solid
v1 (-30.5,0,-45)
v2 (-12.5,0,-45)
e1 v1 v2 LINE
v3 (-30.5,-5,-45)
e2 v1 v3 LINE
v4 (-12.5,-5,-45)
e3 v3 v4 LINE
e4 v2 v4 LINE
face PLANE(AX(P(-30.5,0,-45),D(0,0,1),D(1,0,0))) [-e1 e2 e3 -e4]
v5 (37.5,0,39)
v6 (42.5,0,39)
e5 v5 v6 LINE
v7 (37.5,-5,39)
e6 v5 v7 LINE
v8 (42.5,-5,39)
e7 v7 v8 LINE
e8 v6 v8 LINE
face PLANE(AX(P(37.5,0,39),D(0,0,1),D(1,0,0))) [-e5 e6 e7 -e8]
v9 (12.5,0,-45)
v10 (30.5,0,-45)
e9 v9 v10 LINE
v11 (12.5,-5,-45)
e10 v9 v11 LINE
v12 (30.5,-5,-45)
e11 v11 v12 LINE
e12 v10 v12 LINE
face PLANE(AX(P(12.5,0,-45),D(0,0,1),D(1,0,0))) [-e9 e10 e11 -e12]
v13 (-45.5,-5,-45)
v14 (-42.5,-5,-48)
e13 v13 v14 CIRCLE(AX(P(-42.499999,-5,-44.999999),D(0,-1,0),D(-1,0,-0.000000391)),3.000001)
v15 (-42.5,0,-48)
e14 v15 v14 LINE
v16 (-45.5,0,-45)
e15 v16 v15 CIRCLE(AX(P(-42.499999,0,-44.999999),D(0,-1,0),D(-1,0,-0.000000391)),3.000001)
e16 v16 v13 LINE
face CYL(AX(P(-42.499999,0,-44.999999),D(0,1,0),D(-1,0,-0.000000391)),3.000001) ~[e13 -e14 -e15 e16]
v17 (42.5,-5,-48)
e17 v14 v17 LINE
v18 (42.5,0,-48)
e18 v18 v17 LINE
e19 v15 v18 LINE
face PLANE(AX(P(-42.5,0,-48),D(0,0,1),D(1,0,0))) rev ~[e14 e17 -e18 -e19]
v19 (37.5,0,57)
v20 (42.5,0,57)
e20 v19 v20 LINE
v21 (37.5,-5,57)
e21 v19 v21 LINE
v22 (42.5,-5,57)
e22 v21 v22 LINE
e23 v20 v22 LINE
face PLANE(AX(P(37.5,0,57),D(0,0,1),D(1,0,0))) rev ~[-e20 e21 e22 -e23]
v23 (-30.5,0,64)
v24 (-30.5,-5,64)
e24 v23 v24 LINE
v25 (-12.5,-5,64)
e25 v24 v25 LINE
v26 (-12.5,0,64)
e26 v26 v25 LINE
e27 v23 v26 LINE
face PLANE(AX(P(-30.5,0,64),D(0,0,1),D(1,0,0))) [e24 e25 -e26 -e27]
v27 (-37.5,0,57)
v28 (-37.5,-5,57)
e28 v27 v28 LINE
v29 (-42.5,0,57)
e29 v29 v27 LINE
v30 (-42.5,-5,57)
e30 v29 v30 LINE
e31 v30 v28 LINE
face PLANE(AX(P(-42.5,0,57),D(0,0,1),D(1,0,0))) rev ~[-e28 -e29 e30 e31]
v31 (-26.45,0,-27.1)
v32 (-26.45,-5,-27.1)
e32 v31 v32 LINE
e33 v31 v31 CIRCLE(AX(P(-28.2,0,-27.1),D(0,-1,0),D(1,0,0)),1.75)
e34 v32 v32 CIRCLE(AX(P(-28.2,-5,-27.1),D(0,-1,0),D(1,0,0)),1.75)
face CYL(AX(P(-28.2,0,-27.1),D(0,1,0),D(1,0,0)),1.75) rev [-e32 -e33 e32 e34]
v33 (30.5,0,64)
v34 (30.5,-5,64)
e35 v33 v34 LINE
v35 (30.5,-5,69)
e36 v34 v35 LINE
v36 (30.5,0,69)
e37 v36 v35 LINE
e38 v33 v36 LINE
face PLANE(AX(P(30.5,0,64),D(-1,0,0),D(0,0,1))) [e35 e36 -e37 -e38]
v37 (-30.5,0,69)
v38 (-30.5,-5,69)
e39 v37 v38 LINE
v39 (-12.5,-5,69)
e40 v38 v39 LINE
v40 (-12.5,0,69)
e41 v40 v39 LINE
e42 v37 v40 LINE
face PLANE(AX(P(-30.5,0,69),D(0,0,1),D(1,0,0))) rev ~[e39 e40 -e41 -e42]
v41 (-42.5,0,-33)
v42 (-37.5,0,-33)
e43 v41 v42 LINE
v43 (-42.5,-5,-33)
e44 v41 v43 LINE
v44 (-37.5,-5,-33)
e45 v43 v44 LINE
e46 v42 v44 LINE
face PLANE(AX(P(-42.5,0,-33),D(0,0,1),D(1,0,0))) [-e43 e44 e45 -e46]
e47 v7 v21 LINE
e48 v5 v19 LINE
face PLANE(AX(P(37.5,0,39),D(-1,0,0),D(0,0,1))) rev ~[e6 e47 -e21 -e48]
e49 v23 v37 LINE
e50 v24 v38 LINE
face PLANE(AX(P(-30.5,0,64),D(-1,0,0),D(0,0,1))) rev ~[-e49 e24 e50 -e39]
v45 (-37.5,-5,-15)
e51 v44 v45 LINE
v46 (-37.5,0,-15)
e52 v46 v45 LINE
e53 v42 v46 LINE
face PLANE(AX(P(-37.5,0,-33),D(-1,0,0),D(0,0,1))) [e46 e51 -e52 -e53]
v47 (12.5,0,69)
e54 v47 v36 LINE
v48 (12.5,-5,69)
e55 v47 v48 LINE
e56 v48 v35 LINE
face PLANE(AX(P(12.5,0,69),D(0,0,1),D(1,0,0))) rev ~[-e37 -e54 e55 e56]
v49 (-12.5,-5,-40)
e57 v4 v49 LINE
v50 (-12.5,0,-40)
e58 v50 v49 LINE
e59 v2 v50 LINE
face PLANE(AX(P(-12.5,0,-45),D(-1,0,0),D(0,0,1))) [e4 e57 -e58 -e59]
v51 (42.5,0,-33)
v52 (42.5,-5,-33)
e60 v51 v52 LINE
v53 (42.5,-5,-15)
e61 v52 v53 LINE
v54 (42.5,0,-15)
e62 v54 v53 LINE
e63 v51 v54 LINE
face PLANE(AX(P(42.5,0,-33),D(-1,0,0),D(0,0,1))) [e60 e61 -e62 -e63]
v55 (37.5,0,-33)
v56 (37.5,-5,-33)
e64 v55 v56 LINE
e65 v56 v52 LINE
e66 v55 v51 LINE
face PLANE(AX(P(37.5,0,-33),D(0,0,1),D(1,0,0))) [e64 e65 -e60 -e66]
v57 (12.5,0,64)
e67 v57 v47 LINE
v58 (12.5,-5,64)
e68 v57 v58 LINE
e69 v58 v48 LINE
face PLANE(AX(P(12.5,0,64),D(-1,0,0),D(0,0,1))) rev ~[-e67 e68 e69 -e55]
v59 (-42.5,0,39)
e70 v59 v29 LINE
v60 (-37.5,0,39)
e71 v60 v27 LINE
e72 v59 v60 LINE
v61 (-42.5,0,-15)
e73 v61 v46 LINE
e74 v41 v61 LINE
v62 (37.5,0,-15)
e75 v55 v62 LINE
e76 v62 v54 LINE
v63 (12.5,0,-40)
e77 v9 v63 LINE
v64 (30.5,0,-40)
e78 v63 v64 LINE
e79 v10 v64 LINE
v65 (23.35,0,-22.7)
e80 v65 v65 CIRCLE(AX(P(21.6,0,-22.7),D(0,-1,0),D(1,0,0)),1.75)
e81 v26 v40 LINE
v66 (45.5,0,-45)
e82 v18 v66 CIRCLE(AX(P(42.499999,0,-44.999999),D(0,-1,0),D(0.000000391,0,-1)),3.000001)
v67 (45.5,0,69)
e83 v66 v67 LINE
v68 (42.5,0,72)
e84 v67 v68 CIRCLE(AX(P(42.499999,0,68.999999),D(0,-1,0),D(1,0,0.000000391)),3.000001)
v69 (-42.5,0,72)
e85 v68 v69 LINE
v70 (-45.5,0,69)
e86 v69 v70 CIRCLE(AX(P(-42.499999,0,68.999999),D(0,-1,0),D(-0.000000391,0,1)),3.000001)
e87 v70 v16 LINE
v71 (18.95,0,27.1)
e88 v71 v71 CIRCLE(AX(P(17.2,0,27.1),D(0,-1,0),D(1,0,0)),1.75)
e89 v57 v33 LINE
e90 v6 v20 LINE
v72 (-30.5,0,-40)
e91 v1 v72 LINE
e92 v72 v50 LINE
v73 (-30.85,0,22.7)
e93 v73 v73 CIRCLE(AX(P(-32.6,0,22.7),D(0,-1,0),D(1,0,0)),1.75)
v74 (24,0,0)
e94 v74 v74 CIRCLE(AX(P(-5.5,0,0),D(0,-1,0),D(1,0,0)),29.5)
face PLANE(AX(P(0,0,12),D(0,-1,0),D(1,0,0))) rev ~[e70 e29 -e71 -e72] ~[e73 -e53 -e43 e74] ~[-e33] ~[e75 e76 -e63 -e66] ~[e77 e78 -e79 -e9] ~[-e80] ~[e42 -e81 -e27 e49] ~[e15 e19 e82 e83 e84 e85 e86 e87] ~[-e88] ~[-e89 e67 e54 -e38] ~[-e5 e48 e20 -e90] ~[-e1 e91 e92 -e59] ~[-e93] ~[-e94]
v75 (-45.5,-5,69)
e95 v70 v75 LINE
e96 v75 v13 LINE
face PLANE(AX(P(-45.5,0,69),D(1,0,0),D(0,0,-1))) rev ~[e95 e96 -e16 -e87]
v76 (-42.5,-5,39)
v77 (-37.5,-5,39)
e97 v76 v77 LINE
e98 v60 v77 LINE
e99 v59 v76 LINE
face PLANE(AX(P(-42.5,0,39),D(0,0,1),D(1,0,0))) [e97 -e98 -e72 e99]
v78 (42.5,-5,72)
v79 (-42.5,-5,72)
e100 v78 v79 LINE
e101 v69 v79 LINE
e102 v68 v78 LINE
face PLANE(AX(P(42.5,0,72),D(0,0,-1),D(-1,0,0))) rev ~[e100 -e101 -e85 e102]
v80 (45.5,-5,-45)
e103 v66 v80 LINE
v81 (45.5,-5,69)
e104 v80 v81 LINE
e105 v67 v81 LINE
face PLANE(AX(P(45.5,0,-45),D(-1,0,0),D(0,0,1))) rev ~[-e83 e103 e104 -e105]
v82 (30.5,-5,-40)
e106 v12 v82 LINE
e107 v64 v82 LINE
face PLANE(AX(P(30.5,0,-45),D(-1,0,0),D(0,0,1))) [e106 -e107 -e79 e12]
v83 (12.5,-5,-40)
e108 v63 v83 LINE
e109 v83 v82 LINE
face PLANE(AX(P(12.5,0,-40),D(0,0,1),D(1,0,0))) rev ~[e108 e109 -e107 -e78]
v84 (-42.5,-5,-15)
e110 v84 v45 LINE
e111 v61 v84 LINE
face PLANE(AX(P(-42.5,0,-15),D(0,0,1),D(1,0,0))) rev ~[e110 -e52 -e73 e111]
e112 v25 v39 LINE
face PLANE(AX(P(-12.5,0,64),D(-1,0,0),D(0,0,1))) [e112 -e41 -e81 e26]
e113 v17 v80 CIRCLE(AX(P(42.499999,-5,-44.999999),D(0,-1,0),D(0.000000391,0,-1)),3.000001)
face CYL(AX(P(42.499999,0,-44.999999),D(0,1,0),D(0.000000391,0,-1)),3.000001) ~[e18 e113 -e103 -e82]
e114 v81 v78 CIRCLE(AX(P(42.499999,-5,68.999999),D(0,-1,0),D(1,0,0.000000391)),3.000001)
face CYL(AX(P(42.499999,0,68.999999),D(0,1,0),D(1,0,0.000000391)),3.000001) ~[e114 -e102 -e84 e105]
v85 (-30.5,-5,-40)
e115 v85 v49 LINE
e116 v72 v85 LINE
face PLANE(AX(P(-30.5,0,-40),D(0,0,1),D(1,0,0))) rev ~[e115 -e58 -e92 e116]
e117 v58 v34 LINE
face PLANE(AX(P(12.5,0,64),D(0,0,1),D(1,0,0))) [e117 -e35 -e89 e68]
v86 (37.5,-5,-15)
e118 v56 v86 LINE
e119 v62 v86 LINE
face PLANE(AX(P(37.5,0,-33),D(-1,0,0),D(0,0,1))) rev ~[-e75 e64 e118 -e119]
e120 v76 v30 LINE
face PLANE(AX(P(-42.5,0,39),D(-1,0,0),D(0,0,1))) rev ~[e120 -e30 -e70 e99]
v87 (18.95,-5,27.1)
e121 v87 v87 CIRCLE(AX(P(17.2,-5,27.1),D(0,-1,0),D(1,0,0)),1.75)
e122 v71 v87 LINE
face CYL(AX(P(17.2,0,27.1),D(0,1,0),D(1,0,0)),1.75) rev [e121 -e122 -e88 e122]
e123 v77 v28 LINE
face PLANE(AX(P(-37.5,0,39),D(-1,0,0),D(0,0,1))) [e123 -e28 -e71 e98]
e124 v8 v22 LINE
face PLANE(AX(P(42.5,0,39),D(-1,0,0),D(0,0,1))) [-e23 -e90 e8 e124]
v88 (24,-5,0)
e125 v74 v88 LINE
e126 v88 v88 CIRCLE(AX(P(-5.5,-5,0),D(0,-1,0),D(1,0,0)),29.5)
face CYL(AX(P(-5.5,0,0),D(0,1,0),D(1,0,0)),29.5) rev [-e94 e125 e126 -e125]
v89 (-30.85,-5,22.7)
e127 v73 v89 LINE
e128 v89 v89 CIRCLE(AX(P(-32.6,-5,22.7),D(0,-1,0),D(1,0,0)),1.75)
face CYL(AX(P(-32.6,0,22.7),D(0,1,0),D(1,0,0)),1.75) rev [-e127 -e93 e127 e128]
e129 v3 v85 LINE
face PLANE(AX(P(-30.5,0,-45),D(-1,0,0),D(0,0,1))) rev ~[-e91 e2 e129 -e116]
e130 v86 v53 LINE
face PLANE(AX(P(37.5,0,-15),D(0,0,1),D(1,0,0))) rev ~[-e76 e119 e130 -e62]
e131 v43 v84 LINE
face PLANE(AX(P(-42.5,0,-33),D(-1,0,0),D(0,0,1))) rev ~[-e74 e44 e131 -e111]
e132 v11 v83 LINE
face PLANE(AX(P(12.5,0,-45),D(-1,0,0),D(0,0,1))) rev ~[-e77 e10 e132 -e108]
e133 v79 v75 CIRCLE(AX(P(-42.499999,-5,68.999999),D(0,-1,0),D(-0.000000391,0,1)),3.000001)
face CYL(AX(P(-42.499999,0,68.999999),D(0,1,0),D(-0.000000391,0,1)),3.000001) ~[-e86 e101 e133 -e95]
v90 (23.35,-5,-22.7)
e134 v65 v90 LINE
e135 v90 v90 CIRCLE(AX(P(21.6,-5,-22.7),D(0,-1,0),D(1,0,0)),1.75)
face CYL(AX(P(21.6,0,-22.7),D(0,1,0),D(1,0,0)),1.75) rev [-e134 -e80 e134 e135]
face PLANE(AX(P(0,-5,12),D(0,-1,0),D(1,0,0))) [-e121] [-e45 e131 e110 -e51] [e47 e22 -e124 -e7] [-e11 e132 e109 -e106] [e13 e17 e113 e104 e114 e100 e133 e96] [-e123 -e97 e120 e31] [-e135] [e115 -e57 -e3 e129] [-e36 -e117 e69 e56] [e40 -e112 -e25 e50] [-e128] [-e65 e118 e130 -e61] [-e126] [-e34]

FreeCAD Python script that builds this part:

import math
import FreeCAD as App
import Part
import Sketcher
from FreeCAD import Vector


def add_polygon(sketch, points):
    """Adds a closed chain of lines whose ends are joined by coincident constraints."""
    first, n = sketch.GeometryCount, len(points)
    for a, b in zip(points, points[1:] + points[:1]):
        sketch.addGeometry(Part.LineSegment(App.Vector(*a, 0), App.Vector(*b, 0)), False)
    for i in range(n):
        sketch.addConstraint(Sketcher.Constraint("Coincident", first + i, 2, first + (i + 1) % n, 1))

doc = App.newDocument("Part")
params = doc.addObject("Spreadsheet::Sheet", "Params")
for row, (alias, value) in enumerate([
    ("sketch1_diameter", "59 mm"),
    ("sketch1_radius", "3.000001 mm"),
    ("sketch1_diameter2", "3.5 mm"),
    ("sketch1_width", "85 mm"),
    ("sketch1_width2", "18 mm"),
    ("pad1_length", "5 mm"),
], start=1):
    params.set(f"A{row}", alias)
    params.set(f"B{row}", "=" + value)
    params.setAlias(f"B{row}", alias)

body = doc.addObject("PartDesign::Body", "Body")

sketch1 = body.newObject("Sketcher::SketchObject", "Sketch")
sketch1.AttachmentSupport = (doc.getObject("XZ_Plane"), [""])
sketch1.MapMode = "FlatFace"
sketch1.addGeometry(Part.LineSegment(Vector(42.5, 72, 0), Vector(-42.5, 72, 0)), False)
sketch1.addGeometry(Part.ArcOfCircle(Part.Circle(Vector(-42.499999, 68.999999, 0), Vector(0, 0, 1), 3.000001), math.radians(90.000022), math.radians(179.999978)), False)
sketch1.addGeometry(Part.LineSegment(Vector(-45.5, 69, 0), Vector(-45.5, -45, 0)), False)
sketch1.addGeometry(Part.ArcOfCircle(Part.Circle(Vector(-42.499999, -44.999999, 0), Vector(0, 0, 1), 3.000001), math.radians(-179.999978), math.radians(-90.000022)), False)
sketch1.addGeometry(Part.LineSegment(Vector(-42.5, -48, 0), Vector(42.5, -48, 0)), False)
sketch1.addGeometry(Part.ArcOfCircle(Part.Circle(Vector(42.499999, -44.999999, 0), Vector(0, 0, 1), 3.000001), math.radians(-89.999978), math.radians(-0.000022)), False)
sketch1.addGeometry(Part.LineSegment(Vector(45.5, -45, 0), Vector(45.5, 69, 0)), False)
sketch1.addGeometry(Part.ArcOfCircle(Part.Circle(Vector(42.499999, 68.999999, 0), Vector(0, 0, 1), 3.000001), math.radians(0.000022), math.radians(89.999978)), False)
add_polygon(sketch1, [(-12.5, -45), (-30.5, -45), (-30.5, -40), (-12.5, -40)])
add_polygon(sketch1, [(-37.5, -33), (-42.5, -33), (-42.5, -15), (-37.5, -15)])
sketch1.addGeometry(Part.Circle(Vector(-28.2, -27.1, 0), Vector(0, 0, 1), 1.75), False)
sketch1.addGeometry(Part.Circle(Vector(-5.5, 0, 0), Vector(0, 0, 1), 29.5), False)
add_polygon(sketch1, [(30.5, -45), (12.5, -45), (12.5, -40), (30.5, -40)])
sketch1.addGeometry(Part.Circle(Vector(21.6, -22.7, 0), Vector(0, 0, 1), 1.75), False)
add_polygon(sketch1, [(42.5, -33), (37.5, -33), (37.5, -15), (42.5, -15)])
sketch1.addGeometry(Part.Circle(Vector(-32.6, 22.7, 0), Vector(0, 0, 1), 1.75), False)
add_polygon(sketch1, [(-37.5, 39), (-42.5, 39), (-42.5, 57), (-37.5, 57)])
add_polygon(sketch1, [(-12.5, 64), (-30.5, 64), (-30.5, 69), (-12.5, 69)])
sketch1.addGeometry(Part.Circle(Vector(17.2, 27.1, 0), Vector(0, 0, 1), 1.75), False)
add_polygon(sketch1, [(42.5, 39), (37.5, 39), (37.5, 57), (42.5, 57)])
add_polygon(sketch1, [(30.5, 64), (12.5, 64), (12.5, 69), (30.5, 69)])
sketch1.addConstraint([
    Sketcher.Constraint("Tangent", 0, 2, 1, 1),
    Sketcher.Constraint("Tangent", 1, 2, 2, 1),
    Sketcher.Constraint("Tangent", 2, 2, 3, 1),
    Sketcher.Constraint("Tangent", 3, 2, 4, 1),
    Sketcher.Constraint("Tangent", 4, 2, 5, 1),
    Sketcher.Constraint("Tangent", 5, 2, 6, 1),
    Sketcher.Constraint("Tangent", 6, 2, 7, 1),
    Sketcher.Constraint("Tangent", 7, 2, 0, 1),
    Sketcher.Constraint("Horizontal", 0),
    Sketcher.Constraint("Vertical", 2),
    Sketcher.Constraint("Horizontal", 4),
    Sketcher.Constraint("Vertical", 6),
    Sketcher.Constraint("Horizontal", 8),
    Sketcher.Constraint("Vertical", 9),
    Sketcher.Constraint("Horizontal", 10),
    Sketcher.Constraint("Vertical", 11),
    Sketcher.Constraint("Horizontal", 12),
    Sketcher.Constraint("Vertical", 13),
    Sketcher.Constraint("Horizontal", 14),
    Sketcher.Constraint("Vertical", 15),
    Sketcher.Constraint("Horizontal", 18),
    Sketcher.Constraint("Vertical", 19),
    Sketcher.Constraint("Horizontal", 20),
    Sketcher.Constraint("Vertical", 21),
    Sketcher.Constraint("Horizontal", 23),
    Sketcher.Constraint("Vertical", 24),
    Sketcher.Constraint("Horizontal", 25),
    Sketcher.Constraint("Vertical", 26),
    Sketcher.Constraint("Horizontal", 28),
    Sketcher.Constraint("Vertical", 29),
    Sketcher.Constraint("Horizontal", 30),
    Sketcher.Constraint("Vertical", 31),
    Sketcher.Constraint("Horizontal", 32),
    Sketcher.Constraint("Vertical", 33),
    Sketcher.Constraint("Horizontal", 34),
    Sketcher.Constraint("Vertical", 35),
    Sketcher.Constraint("Horizontal", 37),
    Sketcher.Constraint("Vertical", 38),
    Sketcher.Constraint("Horizontal", 39),
    Sketcher.Constraint("Vertical", 40),
    Sketcher.Constraint("Horizontal", 41),
    Sketcher.Constraint("Vertical", 42),
    Sketcher.Constraint("Horizontal", 43),
    Sketcher.Constraint("Vertical", 44),
    Sketcher.Constraint("Equal", 1, 3),
    Sketcher.Constraint("Equal", 3, 5),
    Sketcher.Constraint("Equal", 5, 7),
    Sketcher.Constraint("Equal", 16, 22),
    Sketcher.Constraint("Equal", 22, 27),
    Sketcher.Constraint("Equal", 27, 36),
    Sketcher.Constraint("Symmetric", 11, 2, 18, 2, -2),
    Sketcher.Constraint("Symmetric", 9, 2, 20, 2, -2),
    Sketcher.Constraint("Symmetric", 15, 2, 23, 2, -2),
    Sketcher.Constraint("Symmetric", 13, 2, 25, 2, -2),
    Sketcher.Constraint("Symmetric", 31, 2, 37, 2, -2),
    Sketcher.Constraint("Symmetric", 29, 2, 39, 2, -2),
    Sketcher.Constraint("Symmetric", 35, 2, 41, 2, -2),
    Sketcher.Constraint("Symmetric", 33, 2, 43, 2, -2),
    Sketcher.Constraint("PointOnObject", 17, 3, -1),
    Sketcher.Constraint("Horizontal", 5, 2, 8, 2),
    Sketcher.Constraint("Horizontal", 6, 2, 33, 2),
    Sketcher.Constraint("Vertical", 3, 2, 12, 2),
    Sketcher.Constraint("Vertical", 7, 2, 25, 2),
    Sketcher.Constraint("Vertical", 13, 2, 28, 2),
    Sketcher.Constraint("Vertical", 15, 2, 30, 2),
    Sketcher.Constraint("Vertical", 9, 2, 32, 2),
    Sketcher.Constraint("Vertical", 11, 2, 34, 2),
    Sketcher.Constraint("Equal", 39, 9),
    Sketcher.Constraint("Equal", 43, 13),
    Sketcher.Constraint("Equal", 26, 29),
    Sketcher.Constraint("Equal", 21, 33),
    Sketcher.Constraint("Diameter", 17, 59.0),
    Sketcher.Constraint("Radius", 1, 3.000001),
    Sketcher.Constraint("Diameter", 16, 3.5),
    Sketcher.Constraint("DistanceX", 0, 2, 0, 1, 85.0),
    Sketcher.Constraint("DistanceX", 8, 2, 8, 1, 18.0),
    Sketcher.Constraint("DistanceX", 12, 2, 12, 1, 5.0),
    Sketcher.Constraint("DistanceY", 2, 2, 2, 1, 114.0),
    Sketcher.Constraint("DistanceY", -1, 1, 1, 3, 68.999999),
    Sketcher.Constraint("DistanceY", 12, 2, -1, 1, 33.0),
    Sketcher.Constraint("DistanceY", -1, 1, 28, 2, 39.0),
    Sketcher.Constraint("DistanceX", 3, 3, 17, 3, 36.999999),
    Sketcher.Constraint("DistanceX", 3, 3, 8, 2, 11.999999),
    Sketcher.Constraint("DistanceX", 16, 3, -1, 1, 28.2),
    Sketcher.Constraint("DistanceY", 16, 3, -1, 1, 27.1),
    Sketcher.Constraint("DistanceX", -1, 1, 22, 3, 21.6),
    Sketcher.Constraint("DistanceY", 22, 3, -1, 1, 22.7),
    Sketcher.Constraint("DistanceX", 27, 3, -1, 1, 32.6),
    Sketcher.Constraint("DistanceY", -1, 1, 27, 3, 22.7),
    Sketcher.Constraint("DistanceX", -1, 1, 36, 3, 17.2),
    Sketcher.Constraint("DistanceY", -1, 1, 36, 3, 27.1),
])
sketch1.setExpression("Constraints[103]", "Params.sketch1_diameter")
sketch1.setExpression("Constraints[104]", "Params.sketch1_radius")
sketch1.setExpression("Constraints[105]", "Params.sketch1_diameter2")
sketch1.setExpression("Constraints[106]", "Params.sketch1_width")
sketch1.setExpression("Constraints[107]", "Params.sketch1_width2")
pad1 = body.newObject("PartDesign::Pad", "Pad")
pad1.Profile = sketch1
pad1.setExpression("Length", "Params.pad1_length")

doc.recompute()
